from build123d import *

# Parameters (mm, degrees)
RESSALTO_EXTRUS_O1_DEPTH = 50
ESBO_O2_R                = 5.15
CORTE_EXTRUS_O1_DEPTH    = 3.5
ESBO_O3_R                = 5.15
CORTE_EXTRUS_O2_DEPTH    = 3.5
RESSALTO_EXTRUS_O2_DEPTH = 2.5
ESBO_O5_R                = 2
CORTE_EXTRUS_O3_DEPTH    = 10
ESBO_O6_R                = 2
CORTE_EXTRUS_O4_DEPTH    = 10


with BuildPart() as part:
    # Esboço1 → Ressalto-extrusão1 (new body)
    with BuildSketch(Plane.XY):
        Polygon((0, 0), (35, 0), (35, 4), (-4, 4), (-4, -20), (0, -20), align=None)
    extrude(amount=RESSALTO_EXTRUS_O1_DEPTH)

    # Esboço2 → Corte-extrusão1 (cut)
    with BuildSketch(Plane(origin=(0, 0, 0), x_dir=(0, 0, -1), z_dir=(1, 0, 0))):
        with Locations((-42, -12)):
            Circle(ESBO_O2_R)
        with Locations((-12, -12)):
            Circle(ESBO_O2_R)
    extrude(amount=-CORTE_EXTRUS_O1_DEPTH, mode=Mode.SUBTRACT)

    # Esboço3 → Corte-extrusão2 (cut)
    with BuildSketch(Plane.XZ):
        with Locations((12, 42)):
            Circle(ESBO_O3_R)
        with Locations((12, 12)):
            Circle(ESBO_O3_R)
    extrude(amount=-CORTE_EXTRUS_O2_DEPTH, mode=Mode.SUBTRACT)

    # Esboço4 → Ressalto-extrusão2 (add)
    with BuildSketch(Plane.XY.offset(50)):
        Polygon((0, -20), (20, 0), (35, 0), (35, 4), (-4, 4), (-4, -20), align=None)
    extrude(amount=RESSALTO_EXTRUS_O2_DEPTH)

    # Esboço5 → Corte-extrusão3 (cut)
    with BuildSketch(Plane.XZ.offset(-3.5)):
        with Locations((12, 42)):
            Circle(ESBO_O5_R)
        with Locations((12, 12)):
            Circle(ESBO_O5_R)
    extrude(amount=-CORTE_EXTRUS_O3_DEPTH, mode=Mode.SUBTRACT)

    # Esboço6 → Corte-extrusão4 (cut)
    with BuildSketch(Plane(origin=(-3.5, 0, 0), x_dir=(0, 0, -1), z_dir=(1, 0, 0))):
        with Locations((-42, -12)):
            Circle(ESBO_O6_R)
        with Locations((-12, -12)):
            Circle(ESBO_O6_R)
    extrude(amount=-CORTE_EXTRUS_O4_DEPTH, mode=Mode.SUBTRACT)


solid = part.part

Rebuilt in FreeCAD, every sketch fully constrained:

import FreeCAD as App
import Part
import Sketcher
Q = App.Units.Quantity


def add_polygon(sketch, points):
    """Adds a closed chain of lines whose ends are joined by coincident constraints."""
    first, n = sketch.GeometryCount, len(points)
    for a, b in zip(points, points[1:] + points[:1]):
        sketch.addGeometry(Part.LineSegment(App.Vector(*a, 0), App.Vector(*b, 0)), False)
    for i in range(n):
        sketch.addConstraint(Sketcher.Constraint("Coincident", first + i, 2, first + (i + 1) % n, 1))

doc = App.newDocument("Part")
body = doc.addObject("PartDesign::Body", "Body")

# Sketch on XY plane
sketch1 = doc.addObject("Sketcher::SketchObject", "Sketch")
body.addObject(sketch1)
sketch1.AttachmentSupport = (doc.XY_Plane, [""])
sketch1.MapMode = "FlatFace"
add_polygon(sketch1, [(0, 0), (35, 0), (35, 4), (-4, 4), (-4, -20), (0, -20)])  # lines 0-5
sketch1.addConstraint([
    Sketcher.Constraint("Horizontal", 0),
    Sketcher.Constraint("Vertical", 1),
    Sketcher.Constraint("Horizontal", 2),
    Sketcher.Constraint("Vertical", 3),
    Sketcher.Constraint("Horizontal", 4),
    Sketcher.Constraint("Vertical", 5),
    Sketcher.Constraint("Coincident", 5, 2, -1, 1),
    Sketcher.Constraint("Equal", 4, 1),
    Sketcher.Constraint("DistanceX", 0, 1, 0, 2, Q("35 mm")),
    Sketcher.Constraint("DistanceX", 2, 2, 2, 1, Q("39 mm")),
    Sketcher.Constraint("DistanceY", 3, 2, 3, 1, Q("24 mm")),
])
pad1 = doc.addObject("PartDesign::Pad", "Pad")
body.addObject(pad1)
pad1.Profile = sketch1
pad1.Length = 50

# Sketch on YZ plane
sketch2 = doc.addObject("Sketcher::SketchObject", "Sketch001")
body.addObject(sketch2)
sketch2.AttachmentSupport = (doc.YZ_Plane, [""])
sketch2.MapMode = "FlatFace"
sketch2.addGeometry([
    Part.Circle(App.Vector(-12, 42, 0), App.Vector(0, 0, 1), 5),
    Part.Circle(App.Vector(-12, 12, 0), App.Vector(0, 0, 1), 5),
], False)
sketch2.addConstraint([
    Sketcher.Constraint("Equal", 0, 1),
    Sketcher.Constraint("Vertical", 0, 3, 1, 3),
    Sketcher.Constraint("Diameter", 0, Q("10.3 mm")),
    Sketcher.Constraint("DistanceX", 0, 3, -1, 1, Q("12 mm")),
    Sketcher.Constraint("DistanceY", -1, 1, 0, 3, Q("42 mm")),
    Sketcher.Constraint("DistanceY", -1, 1, 1, 3, Q("12 mm")),
])
pocket1 = doc.addObject("PartDesign::Pocket", "Pocket")
body.addObject(pocket1)
pocket1.Profile = sketch2
pocket1.Length = 3.5

# Sketch on XZ plane
sketch3 = doc.addObject("Sketcher::SketchObject", "Sketch002")
body.addObject(sketch3)
sketch3.AttachmentSupport = (doc.XZ_Plane, [""])
sketch3.MapMode = "FlatFace"
sketch3.addGeometry([
    Part.Circle(App.Vector(12, 42, 0), App.Vector(0, 0, 1), 5),
    Part.Circle(App.Vector(12, 12, 0), App.Vector(0, 0, 1), 5),
], False)
sketch3.addConstraint([
    Sketcher.Constraint("Equal", 0, 1),
    Sketcher.Constraint("Vertical", 0, 3, 1, 3),
    Sketcher.Constraint("Diameter", 0, Q("10.3 mm")),
    Sketcher.Constraint("DistanceX", -1, 1, 0, 3, Q("12 mm")),
    Sketcher.Constraint("DistanceY", -1, 1, 0, 3, Q("42 mm")),
    Sketcher.Constraint("DistanceY", -1, 1, 1, 3, Q("12 mm")),
])
pocket2 = doc.addObject("PartDesign::Pocket", "Pocket001")
body.addObject(pocket2)
pocket2.Profile = sketch3
pocket2.Length = 3.5

# Sketch on XY plane
sketch4 = doc.addObject("Sketcher::SketchObject", "Sketch003")
body.addObject(sketch4)
sketch4.AttachmentSupport = (doc.XY_Plane, [""])
sketch4.MapMode = "FlatFace"
sketch4.AttachmentOffset = App.Placement(App.Vector(0, 0, 50), App.Rotation())
add_polygon(sketch4, [(0, -20), (20, 0), (35, 0), (35, 4), (-4, 4), (-4, -20)])  # lines 0-5
sketch4.addConstraint([
    Sketcher.Constraint("Horizontal", 1),
    Sketcher.Constraint("Vertical", 2),
    Sketcher.Constraint("Horizontal", 3),
    Sketcher.Constraint("Vertical", 4),
    Sketcher.Constraint("Horizontal", 5),
    Sketcher.Constraint("PointOnObject", 0, 2, -1),
    Sketcher.Constraint("PointOnObject", 5, 2, -2),
    Sketcher.Constraint("Equal", 5, 2),
    Sketcher.Constraint("DistanceX", 1, 1, 1, 2, Q("15 mm")),
    Sketcher.Constraint("DistanceX", 3, 2, 3, 1, Q("39 mm")),
    Sketcher.Constraint("DistanceX", 5, 1, 5, 2, Q("4 mm")),
    Sketcher.Constraint("DistanceY", 4, 2, 4, 1, Q("24 mm")),
])
pad2 = doc.addObject("PartDesign::Pad", "Pad001")
body.addObject(pad2)
pad2.Profile = sketch4
pad2.Length = 2.5

# Sketch on XZ plane
sketch5 = doc.addObject("Sketcher::SketchObject", "Sketch004")
body.addObject(sketch5)
sketch5.AttachmentSupport = (doc.XZ_Plane, [""])
sketch5.MapMode = "FlatFace"
sketch5.AttachmentOffset = App.Placement(App.Vector(0, 0, -3.5), App.Rotation())
sketch5.addGeometry([
    Part.Circle(App.Vector(12, 42, 0), App.Vector(0, 0, 1), 2),
    Part.Circle(App.Vector(12, 12, 0), App.Vector(0, 0, 1), 2),
], False)
sketch5.addConstraint([
    Sketcher.Constraint("Equal", 0, 1),
    Sketcher.Constraint("Vertical", 0, 3, 1, 3),
    Sketcher.Constraint("Diameter", 0, Q("4 mm")),
    Sketcher.Constraint("DistanceX", -1, 1, 0, 3, Q("12 mm")),
    Sketcher.Constraint("DistanceY", -1, 1, 0, 3, Q("42 mm")),
    Sketcher.Constraint("DistanceY", -1, 1, 1, 3, Q("12 mm")),
])
pocket3 = doc.addObject("PartDesign::Pocket", "Pocket002")
body.addObject(pocket3)
pocket3.Profile = sketch5
pocket3.Length = 10

# Sketch on YZ plane
sketch6 = doc.addObject("Sketcher::SketchObject", "Sketch005")
body.addObject(sketch6)
sketch6.AttachmentSupport = (doc.YZ_Plane, [""])
sketch6.MapMode = "FlatFace"
sketch6.AttachmentOffset = App.Placement(App.Vector(0, 0, -3.5), App.Rotation())
sketch6.addGeometry([
    Part.Circle(App.Vector(-12, 42, 0), App.Vector(0, 0, 1), 2),
    Part.Circle(App.Vector(-12, 12, 0), App.Vector(0, 0, 1), 2),
], False)
sketch6.addConstraint([
    Sketcher.Constraint("Equal", 0, 1),
    Sketcher.Constraint("Vertical", 0, 3, 1, 3),
    Sketcher.Constraint("Diameter", 0, Q("4 mm")),
    Sketcher.Constraint("DistanceX", 0, 3, -1, 1, Q("12 mm")),
    Sketcher.Constraint("DistanceY", -1, 1, 0, 3, Q("42 mm")),
    Sketcher.Constraint("DistanceY", -1, 1, 1, 3, Q("12 mm")),
])
pocket4 = doc.addObject("PartDesign::Pocket", "Pocket003")
body.addObject(pocket4)
pocket4.Profile = sketch6
pocket4.Length = 10

doc.recompute()
